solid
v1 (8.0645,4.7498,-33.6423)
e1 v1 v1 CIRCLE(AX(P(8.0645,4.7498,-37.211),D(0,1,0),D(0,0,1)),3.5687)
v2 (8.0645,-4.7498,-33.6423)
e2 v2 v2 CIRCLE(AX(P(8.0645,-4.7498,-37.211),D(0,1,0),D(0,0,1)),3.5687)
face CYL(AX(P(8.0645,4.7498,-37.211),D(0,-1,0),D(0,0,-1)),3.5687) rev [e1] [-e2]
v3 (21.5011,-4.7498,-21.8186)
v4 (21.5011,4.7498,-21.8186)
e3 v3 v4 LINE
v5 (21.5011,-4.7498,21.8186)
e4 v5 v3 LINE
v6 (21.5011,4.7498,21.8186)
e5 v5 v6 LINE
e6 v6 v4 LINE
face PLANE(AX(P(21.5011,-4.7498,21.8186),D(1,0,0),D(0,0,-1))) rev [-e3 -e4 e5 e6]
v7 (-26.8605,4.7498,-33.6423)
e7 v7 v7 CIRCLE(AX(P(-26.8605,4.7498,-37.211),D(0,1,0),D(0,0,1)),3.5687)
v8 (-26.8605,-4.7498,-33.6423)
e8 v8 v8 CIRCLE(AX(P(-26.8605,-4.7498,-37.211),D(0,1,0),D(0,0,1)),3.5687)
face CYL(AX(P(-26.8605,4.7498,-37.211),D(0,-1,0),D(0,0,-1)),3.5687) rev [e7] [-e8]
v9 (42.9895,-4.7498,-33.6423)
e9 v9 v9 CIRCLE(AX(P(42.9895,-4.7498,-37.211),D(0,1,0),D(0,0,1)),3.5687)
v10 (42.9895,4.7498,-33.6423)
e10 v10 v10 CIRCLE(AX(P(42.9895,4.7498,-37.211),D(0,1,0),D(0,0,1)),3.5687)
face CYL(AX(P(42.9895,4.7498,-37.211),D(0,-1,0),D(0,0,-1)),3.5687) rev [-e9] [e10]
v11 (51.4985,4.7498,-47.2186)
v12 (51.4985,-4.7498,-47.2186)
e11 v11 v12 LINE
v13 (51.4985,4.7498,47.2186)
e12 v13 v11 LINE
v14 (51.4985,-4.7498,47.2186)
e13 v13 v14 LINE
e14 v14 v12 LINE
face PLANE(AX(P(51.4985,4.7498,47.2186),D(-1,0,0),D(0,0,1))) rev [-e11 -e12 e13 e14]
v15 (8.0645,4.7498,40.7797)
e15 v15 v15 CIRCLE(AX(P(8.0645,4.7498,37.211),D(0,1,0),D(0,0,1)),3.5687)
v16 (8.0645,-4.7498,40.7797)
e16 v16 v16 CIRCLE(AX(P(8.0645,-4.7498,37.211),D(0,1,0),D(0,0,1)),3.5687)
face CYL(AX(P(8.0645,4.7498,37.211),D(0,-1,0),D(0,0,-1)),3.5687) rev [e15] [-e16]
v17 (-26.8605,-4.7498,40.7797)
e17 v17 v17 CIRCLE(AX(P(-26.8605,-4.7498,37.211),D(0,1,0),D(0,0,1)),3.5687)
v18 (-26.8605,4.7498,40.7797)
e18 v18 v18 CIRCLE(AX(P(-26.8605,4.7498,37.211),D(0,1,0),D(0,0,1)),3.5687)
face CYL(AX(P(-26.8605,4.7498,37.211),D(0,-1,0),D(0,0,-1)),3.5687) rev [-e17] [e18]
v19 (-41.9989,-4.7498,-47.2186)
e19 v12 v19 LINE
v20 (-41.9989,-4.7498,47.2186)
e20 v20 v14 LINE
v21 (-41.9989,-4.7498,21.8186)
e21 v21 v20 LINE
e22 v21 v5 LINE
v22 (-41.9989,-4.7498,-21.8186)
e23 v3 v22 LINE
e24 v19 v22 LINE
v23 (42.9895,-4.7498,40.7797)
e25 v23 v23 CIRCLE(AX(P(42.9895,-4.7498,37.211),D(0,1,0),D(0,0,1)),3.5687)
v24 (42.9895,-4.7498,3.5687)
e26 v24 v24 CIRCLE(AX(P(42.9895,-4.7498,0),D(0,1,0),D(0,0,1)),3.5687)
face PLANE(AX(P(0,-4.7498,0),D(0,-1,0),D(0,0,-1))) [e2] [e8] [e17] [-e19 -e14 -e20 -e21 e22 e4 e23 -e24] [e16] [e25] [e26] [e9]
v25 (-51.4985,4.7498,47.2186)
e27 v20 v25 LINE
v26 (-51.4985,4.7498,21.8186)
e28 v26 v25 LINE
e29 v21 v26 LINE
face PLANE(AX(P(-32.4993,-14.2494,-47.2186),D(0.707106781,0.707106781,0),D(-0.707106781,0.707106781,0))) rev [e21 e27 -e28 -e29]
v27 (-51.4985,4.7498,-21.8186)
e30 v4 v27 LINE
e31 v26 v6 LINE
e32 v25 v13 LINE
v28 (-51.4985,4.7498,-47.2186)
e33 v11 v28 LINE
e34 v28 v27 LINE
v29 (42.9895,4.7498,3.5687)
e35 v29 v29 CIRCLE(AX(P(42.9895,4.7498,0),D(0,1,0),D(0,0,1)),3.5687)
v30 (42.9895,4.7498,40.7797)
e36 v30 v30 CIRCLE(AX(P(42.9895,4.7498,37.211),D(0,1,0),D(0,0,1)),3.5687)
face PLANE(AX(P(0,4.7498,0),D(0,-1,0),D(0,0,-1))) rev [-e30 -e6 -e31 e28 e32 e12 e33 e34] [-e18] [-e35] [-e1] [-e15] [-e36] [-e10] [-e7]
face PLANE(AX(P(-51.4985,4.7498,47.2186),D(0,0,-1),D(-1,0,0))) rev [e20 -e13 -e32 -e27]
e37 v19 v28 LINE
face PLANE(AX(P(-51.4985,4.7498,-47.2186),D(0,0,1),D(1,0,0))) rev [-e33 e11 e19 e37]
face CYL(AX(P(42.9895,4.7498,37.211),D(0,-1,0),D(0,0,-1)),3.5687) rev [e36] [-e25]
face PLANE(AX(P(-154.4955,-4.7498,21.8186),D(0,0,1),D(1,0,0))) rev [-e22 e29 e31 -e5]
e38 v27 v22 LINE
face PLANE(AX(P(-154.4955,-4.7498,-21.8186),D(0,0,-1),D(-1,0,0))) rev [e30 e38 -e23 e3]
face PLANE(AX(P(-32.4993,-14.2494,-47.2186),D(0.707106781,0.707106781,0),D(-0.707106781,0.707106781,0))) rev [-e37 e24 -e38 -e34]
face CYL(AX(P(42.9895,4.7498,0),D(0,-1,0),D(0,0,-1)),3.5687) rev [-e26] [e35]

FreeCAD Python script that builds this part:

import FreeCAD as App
import Part
import Sketcher
Q = App.Units.Quantity


def add_polygon(sketch, points):
    """Adds a closed chain of lines whose ends are joined by coincident constraints."""
    first, n = sketch.GeometryCount, len(points)
    for a, b in zip(points, points[1:] + points[:1]):
        sketch.addGeometry(Part.LineSegment(App.Vector(*a, 0), App.Vector(*b, 0)), False)
    for i in range(n):
        sketch.addConstraint(Sketcher.Constraint("Coincident", first + i, 2, first + (i + 1) % n, 1))

doc = App.newDocument("Part")
params = doc.addObject("Spreadsheet::Sheet", "Params")
for row, (alias, value) in enumerate([
    ("sketch1_width", "4.055 in"),
    ("sketch1_height", "3.718 in"),
    ("pad1_length", "0.374 in"),
    ("sketch2_width", "6.929 in"),
    ("sketch2_height", "1.718 in"),
    ("sketch3_width", "4.803 in"),
    ("sketch3_width2", "3.681 in"),
    ("sketch4_diameter", "0.281 in"),
    ("sketch5_diameter", "0.281 in"),
], start=1):
    params.set(f"A{row}", alias)
    params.set(f"B{row}", "=" + value)
    params.setAlias(f"B{row}", alias)

body = doc.addObject("PartDesign::Body", "Body")

sketch1 = body.newObject("Sketcher::SketchObject", "Sketch")
sketch1.AttachmentSupport = (doc.getObject("XZ_Plane"), [""])
sketch1.MapMode = "FlatFace"
add_polygon(sketch1, [(-51, -47), (-51, 47), (51, 47), (51, -47)])
sketch1.addConstraint([
    Sketcher.Constraint("Vertical", 0),
    Sketcher.Constraint("Horizontal", 1),
    Sketcher.Constraint("Vertical", 2),
    Sketcher.Constraint("Horizontal", 3),
    Sketcher.Constraint("Symmetric", 0, 2, 2, 2, -1, 1),
    Sketcher.Constraint("DistanceX", 1, 1, 1, 2, Q("4.055 in")),
    Sketcher.Constraint("DistanceY", 0, 1, 0, 2, Q("3.718 in")),
])
sketch1.setExpression("Constraints[9]", "Params.sketch1_width")
sketch1.setExpression("Constraints[10]", "Params.sketch1_height")
pad1 = body.newObject("PartDesign::Pad", "Pad")
pad1.Profile = sketch1
pad1.setExpression("Length", "Params.pad1_length")
pad1.Midplane = True

sketch2 = body.newObject("Sketcher::SketchObject", "Sketch001")
sketch2.AttachmentSupport = (doc.getObject("XZ_Plane"), [""])
sketch2.MapMode = "FlatFace"
sketch2.AttachmentOffset = App.Placement(App.Vector(0, 0, -0.187 * 25.4), App.Rotation())
add_polygon(sketch2, [(-154, -22), (-154, 22), (22, 22), (22, -22)])
sketch2.addConstraint([
    Sketcher.Constraint("Vertical", 0),
    Sketcher.Constraint("Horizontal", 1),
    Sketcher.Constraint("Vertical", 2),
    Sketcher.Constraint("Horizontal", 3),
    Sketcher.Constraint("DistanceX", 1, 1, 1, 2, Q("6.929 in")),
    Sketcher.Constraint("DistanceY", 0, 1, 0, 2, Q("1.718 in")),
    Sketcher.Constraint("DistanceY", -1, 1, 0, 2, Q("0.859 in")),
    Sketcher.Constraint("DistanceX", 0, 2, -1, 1, Q("6.0825 in")),
])
sketch2.setExpression("Constraints[8]", "Params.sketch2_width")
sketch2.setExpression("Constraints[9]", "Params.sketch2_height")
pocket1 = body.newObject("PartDesign::Pocket", "Pocket")
pocket1.Profile = sketch2
pocket1.Type = "ThroughAll"
pocket1.Reversed = True

sketch3 = body.newObject("Sketcher::SketchObject", "Sketch002")
sketch3.AttachmentSupport = (doc.getObject("XY_Plane"), [""])
sketch3.MapMode = "FlatFace"
sketch3.AttachmentOffset = App.Placement(App.Vector(0, 0, 1.859 * 25.4), App.Rotation())
add_polygon(sketch3, [(-154, -14), (-32, -14), (-61, 14), (-154, 14)])
sketch3.addConstraint([
    Sketcher.Constraint("Horizontal", 0),
    Sketcher.Constraint("Horizontal", 2),
    Sketcher.Constraint("Vertical", 3),
    Sketcher.Constraint("Angle", 1, Q("135 deg")),
    Sketcher.Constraint("DistanceX", 0, 1, 0, 2, Q("4.803 in")),
    Sketcher.Constraint("DistanceX", 2, 2, 2, 1, Q("3.681 in")),
    Sketcher.Constraint("DistanceY", 0, 2, -1, 1, Q("0.561 in")),
    Sketcher.Constraint("DistanceX", 0, 2, -1, 1, Q("1.2795 in")),
])
sketch3.setExpression("Constraints[8]", "Params.sketch3_width")
sketch3.setExpression("Constraints[9]", "Params.sketch3_width2")
pocket2 = body.newObject("PartDesign::Pocket", "Pocket001")
pocket2.Profile = sketch3
pocket2.Type = "ThroughAll"

sketch4 = body.newObject("Sketcher::SketchObject", "Sketch003")
sketch4.AttachmentSupport = (doc.getObject("XZ_Plane"), [""])
sketch4.MapMode = "FlatFace"
sketch4.AttachmentOffset = App.Placement(App.Vector(0, 0, 0.187 * 25.4), App.Rotation())
sketch4.addGeometry([
    Part.Circle(App.Vector(-26.9, 37.2, 0), App.Vector(0, 0, 1), 3.6),
    Part.Circle(App.Vector(8.1, 37.2, 0), App.Vector(0, 0, 1), 3.6),
    Part.Circle(App.Vector(43, 37.2, 0), App.Vector(0, 0, 1), 3.6),
    Part.Circle(App.Vector(-26.9, -37.2, 0), App.Vector(0, 0, 1), 3.6),
    Part.Circle(App.Vector(8.1, -37.2, 0), App.Vector(0, 0, 1), 3.6),
    Part.Circle(App.Vector(43, -37.2, 0), App.Vector(0, 0, 1), 3.6),
], False)
sketch4.addConstraint([
    Sketcher.Constraint("Equal", 0, 1),
    Sketcher.Constraint("Equal", 1, 2),
    Sketcher.Constraint("Equal", 2, 3),
    Sketcher.Constraint("Equal", 3, 4),
    Sketcher.Constraint("Equal", 4, 5),
    Sketcher.Constraint("Symmetric", 0, 3, 3, 3, -1),
    Sketcher.Constraint("Symmetric", 1, 3, 4, 3, -1),
    Sketcher.Constraint("Symmetric", 2, 3, 5, 3, -1),
    Sketcher.Constraint("Horizontal", 0, 3, 1, 3),
    Sketcher.Constraint("Horizontal", 1, 3, 2, 3),
    Sketcher.Constraint("Diameter", 0, Q("0.281 in")),
    Sketcher.Constraint("DistanceX", 0, 3, 2, 3, Q("2.75 in")),
    Sketcher.Constraint("DistanceY", 3, 3, 0, 3, Q("2.93 in")),
    Sketcher.Constraint("DistanceX", 0, 3, 1, 3, Q("1.375 in")),
    Sketcher.Constraint("DistanceX", 0, 3, -1, 1, Q("1.0575 in")),
])
sketch4.setExpression("Constraints[10]", "Params.sketch4_diameter")
pocket3 = body.newObject("PartDesign::Pocket", "Pocket002")
pocket3.Profile = sketch4
pocket3.Type = "ThroughAll"

sketch5 = body.newObject("Sketcher::SketchObject", "Sketch004")
sketch5.AttachmentSupport = (doc.getObject("XZ_Plane"), [""])
sketch5.MapMode = "FlatFace"
sketch5.AttachmentOffset = App.Placement(App.Vector(0, 0, 0.187 * 25.4), App.Rotation())
sketch5.addGeometry(Part.Circle(App.Vector(43, 0, 0), App.Vector(0, 0, 1), 3.6), False)
sketch5.addConstraint([
    Sketcher.Constraint("PointOnObject", 0, 3, -1),
    Sketcher.Constraint("Diameter", 0, Q("0.281 in")),
    Sketcher.Constraint("DistanceX", -1, 1, 0, 3, Q("1.6925 in")),
])
sketch5.setExpression("Constraints[1]", "Params.sketch5_diameter")
pocket4 = body.newObject("PartDesign::Pocket", "Pocket003")
pocket4.Profile = sketch5
pocket4.Type = "ThroughAll"

doc.recompute()
